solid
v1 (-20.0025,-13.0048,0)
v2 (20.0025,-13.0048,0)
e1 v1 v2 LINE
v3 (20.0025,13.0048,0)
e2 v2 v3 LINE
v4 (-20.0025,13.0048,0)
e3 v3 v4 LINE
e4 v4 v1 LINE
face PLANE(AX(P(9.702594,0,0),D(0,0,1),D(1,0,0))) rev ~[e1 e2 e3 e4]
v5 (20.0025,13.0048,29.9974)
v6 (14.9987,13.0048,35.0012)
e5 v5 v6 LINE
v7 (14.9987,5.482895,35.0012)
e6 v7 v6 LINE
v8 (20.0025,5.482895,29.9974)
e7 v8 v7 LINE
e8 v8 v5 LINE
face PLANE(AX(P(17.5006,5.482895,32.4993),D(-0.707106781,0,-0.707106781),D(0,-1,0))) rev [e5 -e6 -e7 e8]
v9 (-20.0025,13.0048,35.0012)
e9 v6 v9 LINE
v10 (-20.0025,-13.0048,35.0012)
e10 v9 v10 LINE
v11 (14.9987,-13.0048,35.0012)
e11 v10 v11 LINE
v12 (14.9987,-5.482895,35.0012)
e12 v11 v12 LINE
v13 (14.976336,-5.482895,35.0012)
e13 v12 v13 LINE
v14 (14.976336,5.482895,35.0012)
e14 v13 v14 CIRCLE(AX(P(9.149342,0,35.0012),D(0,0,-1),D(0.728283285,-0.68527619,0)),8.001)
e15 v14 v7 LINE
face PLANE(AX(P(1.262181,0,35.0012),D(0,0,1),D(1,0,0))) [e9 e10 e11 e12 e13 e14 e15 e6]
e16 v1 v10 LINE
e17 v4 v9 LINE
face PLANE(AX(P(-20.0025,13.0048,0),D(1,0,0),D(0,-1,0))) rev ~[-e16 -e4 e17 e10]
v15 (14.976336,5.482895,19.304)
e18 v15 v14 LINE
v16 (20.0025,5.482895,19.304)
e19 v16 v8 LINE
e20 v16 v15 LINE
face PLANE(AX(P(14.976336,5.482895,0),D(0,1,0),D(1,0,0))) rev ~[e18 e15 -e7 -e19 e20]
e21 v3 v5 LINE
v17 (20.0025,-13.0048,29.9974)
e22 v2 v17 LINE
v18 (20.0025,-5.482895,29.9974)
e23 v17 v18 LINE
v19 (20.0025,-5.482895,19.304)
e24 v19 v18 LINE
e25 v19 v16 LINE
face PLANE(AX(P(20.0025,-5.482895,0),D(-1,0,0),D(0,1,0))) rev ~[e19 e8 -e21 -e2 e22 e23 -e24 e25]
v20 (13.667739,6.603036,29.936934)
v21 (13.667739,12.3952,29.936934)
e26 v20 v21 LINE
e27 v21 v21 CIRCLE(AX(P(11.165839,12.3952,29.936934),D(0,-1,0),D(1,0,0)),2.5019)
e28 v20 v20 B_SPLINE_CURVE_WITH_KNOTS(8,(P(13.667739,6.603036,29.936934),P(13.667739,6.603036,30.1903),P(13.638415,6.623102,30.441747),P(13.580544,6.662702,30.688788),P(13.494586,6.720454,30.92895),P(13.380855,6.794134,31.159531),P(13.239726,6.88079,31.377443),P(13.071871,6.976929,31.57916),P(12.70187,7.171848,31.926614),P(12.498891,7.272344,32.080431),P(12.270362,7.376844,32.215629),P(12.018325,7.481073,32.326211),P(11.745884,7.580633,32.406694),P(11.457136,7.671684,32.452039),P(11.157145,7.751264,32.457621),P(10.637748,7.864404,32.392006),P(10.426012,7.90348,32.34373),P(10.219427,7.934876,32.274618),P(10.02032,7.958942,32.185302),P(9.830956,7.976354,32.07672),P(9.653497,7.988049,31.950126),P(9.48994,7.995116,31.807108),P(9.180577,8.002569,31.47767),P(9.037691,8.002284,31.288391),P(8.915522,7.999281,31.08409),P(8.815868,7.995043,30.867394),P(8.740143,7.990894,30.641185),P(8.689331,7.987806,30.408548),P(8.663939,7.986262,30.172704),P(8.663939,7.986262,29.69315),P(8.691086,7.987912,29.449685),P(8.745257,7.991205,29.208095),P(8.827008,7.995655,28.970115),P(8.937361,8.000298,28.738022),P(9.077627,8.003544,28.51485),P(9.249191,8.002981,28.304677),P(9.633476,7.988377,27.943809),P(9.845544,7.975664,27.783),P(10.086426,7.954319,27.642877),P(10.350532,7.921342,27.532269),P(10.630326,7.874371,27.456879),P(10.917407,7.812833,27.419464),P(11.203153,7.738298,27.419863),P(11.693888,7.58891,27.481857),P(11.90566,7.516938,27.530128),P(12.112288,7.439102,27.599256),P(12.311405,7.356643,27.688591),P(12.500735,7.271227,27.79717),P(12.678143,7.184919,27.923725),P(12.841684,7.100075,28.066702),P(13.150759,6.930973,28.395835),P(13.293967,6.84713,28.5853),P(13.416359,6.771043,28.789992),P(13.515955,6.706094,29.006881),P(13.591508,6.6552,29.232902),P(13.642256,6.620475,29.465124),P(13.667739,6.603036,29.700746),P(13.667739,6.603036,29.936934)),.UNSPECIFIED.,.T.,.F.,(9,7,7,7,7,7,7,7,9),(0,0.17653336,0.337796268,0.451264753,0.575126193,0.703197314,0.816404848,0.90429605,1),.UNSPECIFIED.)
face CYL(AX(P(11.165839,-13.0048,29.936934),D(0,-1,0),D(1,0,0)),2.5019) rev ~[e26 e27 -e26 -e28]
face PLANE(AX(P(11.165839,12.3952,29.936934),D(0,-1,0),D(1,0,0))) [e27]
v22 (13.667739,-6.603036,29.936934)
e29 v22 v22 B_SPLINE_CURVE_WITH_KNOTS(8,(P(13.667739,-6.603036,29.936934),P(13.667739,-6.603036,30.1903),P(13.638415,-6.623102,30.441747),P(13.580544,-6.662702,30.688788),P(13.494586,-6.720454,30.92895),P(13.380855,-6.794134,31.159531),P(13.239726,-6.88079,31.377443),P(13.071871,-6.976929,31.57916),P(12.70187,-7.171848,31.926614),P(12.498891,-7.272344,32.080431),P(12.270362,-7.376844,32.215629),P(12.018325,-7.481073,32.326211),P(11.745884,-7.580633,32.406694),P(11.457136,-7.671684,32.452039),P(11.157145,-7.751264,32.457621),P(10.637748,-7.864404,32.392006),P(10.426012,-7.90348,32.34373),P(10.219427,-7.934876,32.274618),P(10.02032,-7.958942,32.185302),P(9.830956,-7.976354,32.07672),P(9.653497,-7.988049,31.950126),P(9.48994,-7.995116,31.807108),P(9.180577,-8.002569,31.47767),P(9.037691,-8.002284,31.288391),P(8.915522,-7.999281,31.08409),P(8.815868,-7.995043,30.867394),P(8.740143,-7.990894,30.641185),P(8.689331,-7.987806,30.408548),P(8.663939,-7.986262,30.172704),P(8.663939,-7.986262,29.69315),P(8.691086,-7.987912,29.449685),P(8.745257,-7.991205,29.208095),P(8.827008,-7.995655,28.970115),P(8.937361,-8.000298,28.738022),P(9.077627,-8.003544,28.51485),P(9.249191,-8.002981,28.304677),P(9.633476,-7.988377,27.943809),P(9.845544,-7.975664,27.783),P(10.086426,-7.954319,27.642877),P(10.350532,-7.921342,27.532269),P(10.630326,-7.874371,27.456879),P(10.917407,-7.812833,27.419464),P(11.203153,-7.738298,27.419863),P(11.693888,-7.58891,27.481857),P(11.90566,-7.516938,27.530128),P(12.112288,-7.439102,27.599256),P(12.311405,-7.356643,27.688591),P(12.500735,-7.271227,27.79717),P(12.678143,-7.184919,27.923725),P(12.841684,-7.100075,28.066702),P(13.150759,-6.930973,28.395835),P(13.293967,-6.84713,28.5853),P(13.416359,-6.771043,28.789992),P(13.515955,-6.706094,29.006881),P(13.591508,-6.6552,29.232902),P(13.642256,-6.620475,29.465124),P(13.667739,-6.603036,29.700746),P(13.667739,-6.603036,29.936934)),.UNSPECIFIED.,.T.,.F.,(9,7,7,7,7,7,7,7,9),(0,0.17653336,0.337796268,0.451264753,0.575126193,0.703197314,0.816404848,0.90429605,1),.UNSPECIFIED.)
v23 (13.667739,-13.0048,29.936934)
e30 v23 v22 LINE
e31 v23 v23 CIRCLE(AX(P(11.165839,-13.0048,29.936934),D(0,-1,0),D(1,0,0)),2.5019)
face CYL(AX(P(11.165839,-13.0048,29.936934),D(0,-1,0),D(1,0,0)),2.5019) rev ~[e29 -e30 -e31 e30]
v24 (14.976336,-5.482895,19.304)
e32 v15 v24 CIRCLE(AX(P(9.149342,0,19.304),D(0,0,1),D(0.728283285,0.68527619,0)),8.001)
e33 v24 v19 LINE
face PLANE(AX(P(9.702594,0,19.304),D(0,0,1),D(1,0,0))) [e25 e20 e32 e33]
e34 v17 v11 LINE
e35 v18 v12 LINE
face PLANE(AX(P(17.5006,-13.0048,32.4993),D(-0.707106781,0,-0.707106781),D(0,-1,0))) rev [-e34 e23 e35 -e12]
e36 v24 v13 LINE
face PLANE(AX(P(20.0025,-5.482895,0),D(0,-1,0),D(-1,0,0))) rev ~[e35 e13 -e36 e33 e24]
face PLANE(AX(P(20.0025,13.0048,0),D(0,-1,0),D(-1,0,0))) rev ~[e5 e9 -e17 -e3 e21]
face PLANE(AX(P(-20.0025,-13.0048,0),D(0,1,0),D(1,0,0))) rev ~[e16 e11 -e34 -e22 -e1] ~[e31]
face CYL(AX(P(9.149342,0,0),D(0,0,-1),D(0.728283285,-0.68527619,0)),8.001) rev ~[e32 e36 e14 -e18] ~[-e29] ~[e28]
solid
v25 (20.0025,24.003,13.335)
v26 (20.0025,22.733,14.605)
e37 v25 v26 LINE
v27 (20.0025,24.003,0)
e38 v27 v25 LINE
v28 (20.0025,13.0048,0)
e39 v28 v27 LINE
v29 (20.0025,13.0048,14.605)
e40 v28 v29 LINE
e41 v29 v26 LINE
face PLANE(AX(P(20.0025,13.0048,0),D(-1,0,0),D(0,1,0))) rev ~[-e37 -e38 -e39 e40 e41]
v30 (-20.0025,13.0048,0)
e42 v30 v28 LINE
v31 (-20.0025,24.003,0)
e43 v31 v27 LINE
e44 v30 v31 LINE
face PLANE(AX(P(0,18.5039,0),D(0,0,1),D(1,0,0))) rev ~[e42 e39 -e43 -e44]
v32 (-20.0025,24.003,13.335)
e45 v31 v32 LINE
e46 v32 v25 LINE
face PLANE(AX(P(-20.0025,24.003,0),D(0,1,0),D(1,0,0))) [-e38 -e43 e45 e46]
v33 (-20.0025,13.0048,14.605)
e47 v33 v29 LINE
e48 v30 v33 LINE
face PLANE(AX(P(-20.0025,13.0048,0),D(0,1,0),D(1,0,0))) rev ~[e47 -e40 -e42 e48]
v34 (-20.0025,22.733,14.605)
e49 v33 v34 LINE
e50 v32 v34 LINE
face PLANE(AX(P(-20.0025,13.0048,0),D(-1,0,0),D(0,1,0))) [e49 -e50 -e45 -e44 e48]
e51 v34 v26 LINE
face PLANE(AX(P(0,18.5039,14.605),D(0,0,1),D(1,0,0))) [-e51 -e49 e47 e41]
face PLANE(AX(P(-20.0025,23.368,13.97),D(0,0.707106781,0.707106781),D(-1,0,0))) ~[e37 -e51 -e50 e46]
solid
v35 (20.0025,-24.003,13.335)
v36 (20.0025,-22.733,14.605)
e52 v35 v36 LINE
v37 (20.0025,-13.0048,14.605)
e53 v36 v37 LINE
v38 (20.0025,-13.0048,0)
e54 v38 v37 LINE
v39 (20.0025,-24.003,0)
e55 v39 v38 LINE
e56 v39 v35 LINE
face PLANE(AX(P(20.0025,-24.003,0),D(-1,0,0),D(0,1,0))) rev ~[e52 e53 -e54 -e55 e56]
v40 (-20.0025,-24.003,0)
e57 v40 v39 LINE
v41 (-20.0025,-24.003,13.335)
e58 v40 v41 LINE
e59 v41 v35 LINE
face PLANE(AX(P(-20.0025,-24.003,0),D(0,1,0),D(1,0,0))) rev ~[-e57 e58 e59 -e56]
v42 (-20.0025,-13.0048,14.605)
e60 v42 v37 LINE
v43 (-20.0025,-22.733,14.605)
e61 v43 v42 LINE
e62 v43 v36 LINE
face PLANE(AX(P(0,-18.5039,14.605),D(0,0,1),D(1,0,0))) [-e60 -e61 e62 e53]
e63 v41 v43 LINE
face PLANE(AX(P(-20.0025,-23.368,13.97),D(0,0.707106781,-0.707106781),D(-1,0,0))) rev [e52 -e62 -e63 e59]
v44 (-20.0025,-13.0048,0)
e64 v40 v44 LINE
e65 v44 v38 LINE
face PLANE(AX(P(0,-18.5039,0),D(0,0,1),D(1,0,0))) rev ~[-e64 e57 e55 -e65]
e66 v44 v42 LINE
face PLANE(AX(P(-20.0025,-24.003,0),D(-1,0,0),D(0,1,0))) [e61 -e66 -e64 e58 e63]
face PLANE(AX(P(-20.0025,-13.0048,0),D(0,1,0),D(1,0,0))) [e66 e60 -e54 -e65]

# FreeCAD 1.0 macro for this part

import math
import FreeCAD as App
import Part
import Sketcher
from FreeCAD import Vector
Q = App.Units.Quantity


def edges_at(feature, points):
    """Names of the edges that pass closest to the given points."""
    edges = feature.Shape.Edges
    near = lambda p: min(range(len(edges)), key=lambda i: edges[i].distToShape(Part.Vertex(*p))[0])
    return sorted({f"Edge{near(p) + 1}" for p in points})

doc = App.newDocument("Part")
body = doc.addObject("PartDesign::Body", "Body")

# Sketch on XY plane
sketch1 = doc.addObject("Sketcher::SketchObject", "Sketch")
body.addObject(sketch1)
sketch1.AttachmentSupport = (doc.XY_Plane, [""])
sketch1.MapMode = "FlatFace"
sketch1.addGeometry([
    Part.LineSegment(Vector(-20, -13, 0), Vector(-20, -24, 0)),
    Part.LineSegment(Vector(-20, -24, 0), Vector(20, -24, 0)),
    Part.LineSegment(Vector(20, -24, 0), Vector(20, -13, 0)),
    Part.LineSegment(Vector(20, -13, 0), Vector(-20, -13, 0)),
], False)
sketch1.addConstraint([
    Sketcher.Constraint("Coincident", 0, 2, 1, 1),
    Sketcher.Constraint("Coincident", 1, 2, 2, 1),
    Sketcher.Constraint("Coincident", 2, 2, 3, 1),
    Sketcher.Constraint("Coincident", 3, 2, 0, 1),
    Sketcher.Constraint("Vertical", 0),
    Sketcher.Constraint("Horizontal", 1),
    Sketcher.Constraint("Vertical", 2),
    Sketcher.Constraint("Horizontal", 3),
    Sketcher.Constraint("DistanceX", 1, 1, 1, 2, Q("1.575 in")),
    Sketcher.Constraint("DistanceY", 0, 2, 0, 1, Q("0.433 in")),
    Sketcher.Constraint("DistanceY", 0, 2, -1, 1, Q("0.945 in")),
    Sketcher.Constraint("DistanceX", 0, 2, -1, 1, Q("0.7875 in")),
])
pad1 = doc.addObject("PartDesign::Pad", "Pad")
body.addObject(pad1)
pad1.Profile = sketch1
pad1.Length = Q("0.575 in")
doc.recompute()

chamfer = doc.addObject("PartDesign::Chamfer", "Chamfer")
body.addObject(chamfer)
chamfer.Base = (pad1, edges_at(pad1, [(0, -24.003, 14.605)]))
chamfer.Size = Q("0.05 in")
body2 = doc.addObject("PartDesign::Body", "Body001")

# Sketch on XY plane
sketch2 = doc.addObject("Sketcher::SketchObject", "Sketch001")
body2.addObject(sketch2)
sketch2.AttachmentSupport = (doc.getObject("XY_Plane001"), [""])
sketch2.MapMode = "FlatFace"
sketch2.addGeometry([
    Part.LineSegment(Vector(-20, 24, 0), Vector(-20, 13, 0)),
    Part.LineSegment(Vector(-20, 13, 0), Vector(20, 13, 0)),
    Part.LineSegment(Vector(20, 13, 0), Vector(20, 24, 0)),
    Part.LineSegment(Vector(20, 24, 0), Vector(-20, 24, 0)),
], False)
sketch2.addConstraint([
    Sketcher.Constraint("Coincident", 0, 2, 1, 1),
    Sketcher.Constraint("Coincident", 1, 2, 2, 1),
    Sketcher.Constraint("Coincident", 2, 2, 3, 1),
    Sketcher.Constraint("Coincident", 3, 2, 0, 1),
    Sketcher.Constraint("Vertical", 0),
    Sketcher.Constraint("Horizontal", 1),
    Sketcher.Constraint("Vertical", 2),
    Sketcher.Constraint("Horizontal", 3),
    Sketcher.Constraint("DistanceX", 1, 1, 1, 2, Q("1.575 in")),
    Sketcher.Constraint("DistanceY", 0, 2, 0, 1, Q("0.433 in")),
    Sketcher.Constraint("DistanceY", -1, 1, 0, 2, Q("0.512 in")),
    Sketcher.Constraint("DistanceX", 0, 2, -1, 1, Q("0.7875 in")),
])
pad2 = doc.addObject("PartDesign::Pad", "Pad001")
body2.addObject(pad2)
pad2.Profile = sketch2
pad2.Length = Q("0.575 in")
doc.recompute()

chamfer2 = doc.addObject("PartDesign::Chamfer", "Chamfer001")
body2.addObject(chamfer2)
chamfer2.Base = (pad2, edges_at(pad2, [(0, 24.003, 14.605)]))
chamfer2.Size = Q("0.05 in")
body3 = doc.addObject("PartDesign::Body", "Body002")

# Sketch on XY plane
sketch3 = doc.addObject("Sketcher::SketchObject", "Sketch002")
body3.addObject(sketch3)
sketch3.AttachmentSupport = (doc.getObject("XY_Plane002"), [""])
sketch3.MapMode = "FlatFace"
sketch3.addGeometry([
    Part.LineSegment(Vector(-20, -13, 0), Vector(20, -13, 0)),  # 0
    Part.LineSegment(Vector(20, -13, 0), Vector(20, -5, 0)),  # 1
    Part.LineSegment(Vector(20, -5, 0), Vector(15, -5, 0)),  # 2
    Part.ArcOfCircle(Part.Circle(Vector(9, 0, 0), Vector(0, 0, 1), 8), math.radians(43), math.radians(317)),  # 3
    Part.LineSegment(Vector(15, 5, 0), Vector(20, 5, 0)),  # 4
    Part.LineSegment(Vector(20, 5, 0), Vector(20, 13, 0)),  # 5
    Part.LineSegment(Vector(20, 13, 0), Vector(-20, 13, 0)),  # 6
    Part.LineSegment(Vector(-20, 13, 0), Vector(-20, -13, 0)),  # 7
], False)
sketch3.addConstraint([
    Sketcher.Constraint("Coincident", 0, 2, 1, 1),
    Sketcher.Constraint("Coincident", 1, 2, 2, 1),
    Sketcher.Constraint("Coincident", 2, 2, 3, 2),
    Sketcher.Constraint("Coincident", 3, 1, 4, 1),
    Sketcher.Constraint("Coincident", 4, 2, 5, 1),
    Sketcher.Constraint("Coincident", 5, 2, 6, 1),
    Sketcher.Constraint("Coincident", 6, 2, 7, 1),
    Sketcher.Constraint("Coincident", 7, 2, 0, 1),
    Sketcher.Constraint("Horizontal", 0),
    Sketcher.Constraint("Vertical", 1),
    Sketcher.Constraint("Horizontal", 2),
    Sketcher.Constraint("Horizontal", 4),
    Sketcher.Constraint("Vertical", 5),
    Sketcher.Constraint("Horizontal", 6),
    Sketcher.Constraint("Vertical", 7),
    Sketcher.Constraint("Symmetric", 0, 2, 6, 2, -1, 1),
    Sketcher.Constraint("Symmetric", 2, 2, 3, 1, -1),
    Sketcher.Constraint("Vertical", 1, 2, 4, 2),
    Sketcher.Constraint("Radius", 3, Q("0.315 in")),
    Sketcher.Constraint("DistanceX", 0, 1, 0, 2, Q("1.575 in")),
    Sketcher.Constraint("DistanceY", 7, 2, 7, 1, Q("1.024 in")),
    Sketcher.Constraint("DistanceX", 2, 2, 2, 1, 5.026164),
    Sketcher.Constraint("DistanceY", 1, 1, 1, 2, 7.521905),
])
pad3 = doc.addObject("PartDesign::Pad", "Pad002")
body3.addObject(pad3)
pad3.Profile = sketch3
pad3.Length = Q("1.378 in")

# Sketch on XY plane
sketch4 = doc.addObject("Sketcher::SketchObject", "Sketch003")
body3.addObject(sketch4)
sketch4.AttachmentSupport = (doc.getObject("XY_Plane002"), [""])
sketch4.MapMode = "FlatFace"
sketch4.addGeometry([
    Part.ArcOfCircle(Part.Circle(Vector(9, 0, 0), Vector(0, 0, 1), 8), math.radians(43), math.radians(317)),
    Part.LineSegment(Vector(15, -5, 0), Vector(20, -5, 0)),
    Part.LineSegment(Vector(20, -5, 0), Vector(20, 5, 0)),
    Part.LineSegment(Vector(20, 5, 0), Vector(15, 5, 0)),
], False)
sketch4.addConstraint([
    Sketcher.Constraint("Coincident", 0, 2, 1, 1),
    Sketcher.Constraint("Coincident", 1, 2, 2, 1),
    Sketcher.Constraint("Coincident", 2, 2, 3, 1),
    Sketcher.Constraint("Coincident", 3, 2, 0, 1),
    Sketcher.Constraint("Horizontal", 1),
    Sketcher.Constraint("Vertical", 2),
    Sketcher.Constraint("Horizontal", 3),
    Sketcher.Constraint("Symmetric", 0, 2, 3, 2, -1),
    Sketcher.Constraint("Radius", 0, Q("0.315 in")),
    Sketcher.Constraint("DistanceX", -1, 1, 1, 2, Q("0.7875 in")),
    Sketcher.Constraint("DistanceY", 2, 1, 2, 2, 10.96579),
    Sketcher.Constraint("DistanceX", 1, 1, 1, 2, 5.026164),
])
pad4 = doc.addObject("PartDesign::Pad", "Pad003")
body3.addObject(pad4)
pad4.Profile = sketch4
pad4.Length = Q("0.76 in")
doc.recompute()

chamfer3 = doc.addObject("PartDesign::Chamfer", "Chamfer002")
body3.addObject(chamfer3)
chamfer3.Base = (pad4, edges_at(pad4, [(20.003, -9.244, 35.001), (20.003, 9.244, 35.001)]))
chamfer3.Size = Q("0.197 in")

# Sketch on XZ plane
sketch5 = doc.addObject("Sketcher::SketchObject", "Sketch004")
body3.addObject(sketch5)
sketch5.AttachmentSupport = (doc.getObject("XZ_Plane002"), [""])
sketch5.MapMode = "FlatFace"
sketch5.AttachmentOffset = App.Placement(Vector(0, 0, 0.512 * 25.4), App.Rotation())
sketch5.addGeometry(Part.Circle(Vector(11.2, 29.9, 0), Vector(0, 0, 1), 2.5), False)
sketch5.addConstraint([
    Sketcher.Constraint("Diameter", 0, Q("0.197 in")),
    Sketcher.Constraint("DistanceX", -1, 1, 0, 3, Q("0.4395999 in")),
    Sketcher.Constraint("DistanceY", -1, 1, 0, 3, 29.936934),
])
pocket1 = doc.addObject("PartDesign::Pocket", "Pocket")
body3.addObject(pocket1)
pocket1.Profile = sketch5
pocket1.Length = Q("1 in")

doc.recompute()
